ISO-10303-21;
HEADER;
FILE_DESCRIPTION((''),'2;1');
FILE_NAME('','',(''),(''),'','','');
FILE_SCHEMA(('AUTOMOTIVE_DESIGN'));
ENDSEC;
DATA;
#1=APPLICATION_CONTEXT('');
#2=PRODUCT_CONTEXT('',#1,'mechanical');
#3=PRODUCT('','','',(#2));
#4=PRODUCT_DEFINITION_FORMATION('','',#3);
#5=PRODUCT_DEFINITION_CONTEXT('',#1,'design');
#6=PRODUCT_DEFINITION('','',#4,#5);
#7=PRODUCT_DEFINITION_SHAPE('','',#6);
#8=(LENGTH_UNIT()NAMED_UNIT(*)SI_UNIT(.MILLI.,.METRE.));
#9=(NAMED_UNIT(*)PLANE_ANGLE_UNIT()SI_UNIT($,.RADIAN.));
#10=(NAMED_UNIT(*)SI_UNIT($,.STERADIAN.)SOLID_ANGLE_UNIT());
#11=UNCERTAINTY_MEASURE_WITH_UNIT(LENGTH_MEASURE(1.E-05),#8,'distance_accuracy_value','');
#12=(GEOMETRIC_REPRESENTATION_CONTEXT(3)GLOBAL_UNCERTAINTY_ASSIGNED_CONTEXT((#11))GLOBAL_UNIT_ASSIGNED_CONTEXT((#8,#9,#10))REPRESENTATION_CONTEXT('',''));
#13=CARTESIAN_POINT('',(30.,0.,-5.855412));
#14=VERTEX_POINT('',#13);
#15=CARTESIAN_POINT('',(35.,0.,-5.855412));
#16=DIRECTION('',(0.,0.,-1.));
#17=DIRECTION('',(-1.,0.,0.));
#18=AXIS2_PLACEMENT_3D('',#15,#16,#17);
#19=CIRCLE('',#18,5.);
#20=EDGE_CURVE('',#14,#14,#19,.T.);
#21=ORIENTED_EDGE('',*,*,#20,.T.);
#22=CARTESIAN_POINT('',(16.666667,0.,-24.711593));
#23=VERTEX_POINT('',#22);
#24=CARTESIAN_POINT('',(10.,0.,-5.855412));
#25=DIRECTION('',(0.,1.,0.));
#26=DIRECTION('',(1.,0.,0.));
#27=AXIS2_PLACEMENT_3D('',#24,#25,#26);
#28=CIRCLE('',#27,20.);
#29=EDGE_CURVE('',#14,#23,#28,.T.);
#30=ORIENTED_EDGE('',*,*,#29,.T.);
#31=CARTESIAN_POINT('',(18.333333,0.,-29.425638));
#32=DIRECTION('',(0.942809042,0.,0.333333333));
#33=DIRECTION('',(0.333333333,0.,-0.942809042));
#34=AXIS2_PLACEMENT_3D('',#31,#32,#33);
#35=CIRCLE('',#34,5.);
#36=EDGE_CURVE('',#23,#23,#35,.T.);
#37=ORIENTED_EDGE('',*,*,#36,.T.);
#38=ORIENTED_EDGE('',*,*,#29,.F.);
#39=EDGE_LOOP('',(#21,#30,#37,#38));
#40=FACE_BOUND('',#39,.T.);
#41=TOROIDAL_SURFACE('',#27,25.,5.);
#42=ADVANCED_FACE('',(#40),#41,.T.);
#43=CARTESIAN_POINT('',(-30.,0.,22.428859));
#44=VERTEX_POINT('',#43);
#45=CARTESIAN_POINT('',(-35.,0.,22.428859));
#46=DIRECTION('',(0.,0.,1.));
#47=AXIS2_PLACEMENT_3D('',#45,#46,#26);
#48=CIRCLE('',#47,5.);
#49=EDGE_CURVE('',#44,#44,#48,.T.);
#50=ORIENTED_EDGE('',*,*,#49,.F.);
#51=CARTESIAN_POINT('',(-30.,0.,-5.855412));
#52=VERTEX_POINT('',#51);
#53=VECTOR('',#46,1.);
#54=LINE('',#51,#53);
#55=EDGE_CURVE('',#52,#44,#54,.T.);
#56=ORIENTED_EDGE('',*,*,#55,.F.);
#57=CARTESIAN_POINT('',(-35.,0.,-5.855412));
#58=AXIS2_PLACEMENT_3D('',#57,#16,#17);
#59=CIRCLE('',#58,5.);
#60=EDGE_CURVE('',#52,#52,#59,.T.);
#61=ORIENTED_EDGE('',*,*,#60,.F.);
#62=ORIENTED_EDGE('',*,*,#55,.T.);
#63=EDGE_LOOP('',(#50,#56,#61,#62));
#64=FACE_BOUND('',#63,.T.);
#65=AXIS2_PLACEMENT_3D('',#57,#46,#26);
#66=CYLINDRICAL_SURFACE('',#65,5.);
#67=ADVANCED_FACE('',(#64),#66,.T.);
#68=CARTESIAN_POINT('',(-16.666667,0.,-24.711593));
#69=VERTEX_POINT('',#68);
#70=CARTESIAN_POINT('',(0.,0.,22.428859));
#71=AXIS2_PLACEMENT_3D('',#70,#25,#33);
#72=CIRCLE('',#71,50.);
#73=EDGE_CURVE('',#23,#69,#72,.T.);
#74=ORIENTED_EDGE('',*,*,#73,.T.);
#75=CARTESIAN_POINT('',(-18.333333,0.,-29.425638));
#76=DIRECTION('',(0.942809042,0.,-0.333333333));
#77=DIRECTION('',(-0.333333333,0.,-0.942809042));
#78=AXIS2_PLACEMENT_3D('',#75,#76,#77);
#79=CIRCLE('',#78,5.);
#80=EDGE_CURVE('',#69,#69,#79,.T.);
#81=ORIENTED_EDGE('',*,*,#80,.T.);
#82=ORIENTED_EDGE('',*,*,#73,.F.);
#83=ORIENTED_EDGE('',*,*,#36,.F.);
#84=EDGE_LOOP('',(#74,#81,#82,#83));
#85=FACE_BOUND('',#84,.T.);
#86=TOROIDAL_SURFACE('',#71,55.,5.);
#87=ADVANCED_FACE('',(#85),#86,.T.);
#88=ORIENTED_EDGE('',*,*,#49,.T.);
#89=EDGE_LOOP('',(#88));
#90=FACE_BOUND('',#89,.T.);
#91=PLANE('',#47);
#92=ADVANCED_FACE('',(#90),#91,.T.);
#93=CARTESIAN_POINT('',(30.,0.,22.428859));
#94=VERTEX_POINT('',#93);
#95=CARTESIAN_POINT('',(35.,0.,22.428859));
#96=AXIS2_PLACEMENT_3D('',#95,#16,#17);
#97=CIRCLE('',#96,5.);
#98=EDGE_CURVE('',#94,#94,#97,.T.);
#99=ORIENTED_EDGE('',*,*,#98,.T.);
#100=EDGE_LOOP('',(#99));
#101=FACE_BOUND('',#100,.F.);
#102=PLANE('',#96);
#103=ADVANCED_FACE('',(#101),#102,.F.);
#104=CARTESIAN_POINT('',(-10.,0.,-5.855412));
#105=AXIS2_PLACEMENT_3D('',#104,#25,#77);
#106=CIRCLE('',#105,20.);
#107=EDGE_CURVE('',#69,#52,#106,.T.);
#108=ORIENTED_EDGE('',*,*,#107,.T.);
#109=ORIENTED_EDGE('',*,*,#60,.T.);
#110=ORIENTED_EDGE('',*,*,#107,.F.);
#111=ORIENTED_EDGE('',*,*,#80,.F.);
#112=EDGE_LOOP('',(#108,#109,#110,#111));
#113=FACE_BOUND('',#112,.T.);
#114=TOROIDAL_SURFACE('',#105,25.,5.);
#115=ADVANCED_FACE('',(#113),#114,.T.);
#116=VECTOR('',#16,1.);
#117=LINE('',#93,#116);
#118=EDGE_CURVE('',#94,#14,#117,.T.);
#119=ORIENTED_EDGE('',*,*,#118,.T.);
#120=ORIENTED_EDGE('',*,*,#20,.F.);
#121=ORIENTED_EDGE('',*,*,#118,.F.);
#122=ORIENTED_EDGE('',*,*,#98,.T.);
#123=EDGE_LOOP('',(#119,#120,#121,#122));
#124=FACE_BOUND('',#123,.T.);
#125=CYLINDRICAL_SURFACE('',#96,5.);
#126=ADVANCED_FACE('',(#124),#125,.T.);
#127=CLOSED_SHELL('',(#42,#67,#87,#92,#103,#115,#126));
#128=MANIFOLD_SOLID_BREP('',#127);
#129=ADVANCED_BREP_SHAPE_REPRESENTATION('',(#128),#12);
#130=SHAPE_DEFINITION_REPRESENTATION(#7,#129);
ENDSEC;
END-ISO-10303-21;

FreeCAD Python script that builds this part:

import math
import FreeCAD as App
import Part
import Sketcher
Q = App.Units.Quantity

doc = App.newDocument("Part")
body = doc.addObject("PartDesign::Body", "Body")

# Sketch on XY plane
sketch1 = body.newObject("Sketcher::SketchObject", "Sketch")
sketch1.AttachmentSupport = (doc.getObject("XY_Plane"), [""])
sketch1.MapMode = "FlatFace"
sketch1.AttachmentOffset = App.Placement(App.Vector(0, 0, 22.428859), App.Rotation())
sketch1.addGeometry(Part.Circle(App.Vector(-35, 0, 0), App.Vector(0, 0, 1), 5), False)
sketch1.addConstraint(Sketcher.Constraint("PointOnObject", 0, 3, -1))
sketch1.addConstraint(Sketcher.Constraint("Diameter", 0, Q("10 mm")))
sketch1.addConstraint(Sketcher.Constraint("DistanceX", 0, 3, -1, 1, Q("35 mm")))

# Sketch on XZ plane
sketch2 = body.newObject("Sketcher::SketchObject", "Sketch001")
sketch2.AttachmentSupport = (doc.getObject("XZ_Plane"), [""])
sketch2.MapMode = "FlatFace"
sketch2.addGeometry(Part.LineSegment(App.Vector(35, 22, 0), App.Vector(35, -6, 0)), False)
sketch2.addGeometry(Part.ArcOfCircle(Part.Circle(App.Vector(10, -6, 0), App.Vector(0, 0, 1), 25), math.radians(-71), math.radians(0)), False)
sketch2.addGeometry(Part.ArcOfCircle(Part.Circle(App.Vector(0, 22, 0), App.Vector(0, 0, 1), 55), math.radians(-109), math.radians(-71)), False)
sketch2.addGeometry(Part.ArcOfCircle(Part.Circle(App.Vector(-10, -6, 0), App.Vector(0, 0, 1), 25), math.radians(180), math.radians(251)), False)
sketch2.addGeometry(Part.LineSegment(App.Vector(-35, -6, 0), App.Vector(-35, 22, 0)), False)
sketch2.addConstraint(Sketcher.Constraint("Tangent", 0, 2, 1, 2))
sketch2.addConstraint(Sketcher.Constraint("Tangent", 1, 1, 2, 2))
sketch2.addConstraint(Sketcher.Constraint("Tangent", 2, 1, 3, 2))
sketch2.addConstraint(Sketcher.Constraint("Tangent", 3, 1, 4, 1))
sketch2.addConstraint(Sketcher.Constraint("Vertical", 0))
sketch2.addConstraint(Sketcher.Constraint("Vertical", 4))
sketch2.addConstraint(Sketcher.Constraint("Equal", 1, 3))
sketch2.addConstraint(Sketcher.Constraint("Symmetric", 1, 3, 3, 3, -2))
sketch2.addConstraint(Sketcher.Constraint("Horizontal", 2, 3, 0, 1))
sketch2.addConstraint(Sketcher.Constraint("Horizontal", 0, 1, 4, 2))
sketch2.addConstraint(Sketcher.Constraint("Radius", 1, Q("25 mm")))
sketch2.addConstraint(Sketcher.Constraint("Radius", 2, Q("55 mm")))
sketch2.addConstraint(Sketcher.Constraint("DistanceX", -1, 1, 1, 3, Q("10 mm")))
sketch2.addConstraint(Sketcher.Constraint("DistanceY", 1, 3, -1, 1, Q("5.855412 mm")))
doc.recompute()

additivepipe = body.newObject("PartDesign::AdditivePipe", "AdditivePipe")
additivepipe.Profile = sketch1
additivepipe.Spine = (sketch2, ["Edge1", "Edge2", "Edge3", "Edge4", "Edge5"])

doc.recompute()
